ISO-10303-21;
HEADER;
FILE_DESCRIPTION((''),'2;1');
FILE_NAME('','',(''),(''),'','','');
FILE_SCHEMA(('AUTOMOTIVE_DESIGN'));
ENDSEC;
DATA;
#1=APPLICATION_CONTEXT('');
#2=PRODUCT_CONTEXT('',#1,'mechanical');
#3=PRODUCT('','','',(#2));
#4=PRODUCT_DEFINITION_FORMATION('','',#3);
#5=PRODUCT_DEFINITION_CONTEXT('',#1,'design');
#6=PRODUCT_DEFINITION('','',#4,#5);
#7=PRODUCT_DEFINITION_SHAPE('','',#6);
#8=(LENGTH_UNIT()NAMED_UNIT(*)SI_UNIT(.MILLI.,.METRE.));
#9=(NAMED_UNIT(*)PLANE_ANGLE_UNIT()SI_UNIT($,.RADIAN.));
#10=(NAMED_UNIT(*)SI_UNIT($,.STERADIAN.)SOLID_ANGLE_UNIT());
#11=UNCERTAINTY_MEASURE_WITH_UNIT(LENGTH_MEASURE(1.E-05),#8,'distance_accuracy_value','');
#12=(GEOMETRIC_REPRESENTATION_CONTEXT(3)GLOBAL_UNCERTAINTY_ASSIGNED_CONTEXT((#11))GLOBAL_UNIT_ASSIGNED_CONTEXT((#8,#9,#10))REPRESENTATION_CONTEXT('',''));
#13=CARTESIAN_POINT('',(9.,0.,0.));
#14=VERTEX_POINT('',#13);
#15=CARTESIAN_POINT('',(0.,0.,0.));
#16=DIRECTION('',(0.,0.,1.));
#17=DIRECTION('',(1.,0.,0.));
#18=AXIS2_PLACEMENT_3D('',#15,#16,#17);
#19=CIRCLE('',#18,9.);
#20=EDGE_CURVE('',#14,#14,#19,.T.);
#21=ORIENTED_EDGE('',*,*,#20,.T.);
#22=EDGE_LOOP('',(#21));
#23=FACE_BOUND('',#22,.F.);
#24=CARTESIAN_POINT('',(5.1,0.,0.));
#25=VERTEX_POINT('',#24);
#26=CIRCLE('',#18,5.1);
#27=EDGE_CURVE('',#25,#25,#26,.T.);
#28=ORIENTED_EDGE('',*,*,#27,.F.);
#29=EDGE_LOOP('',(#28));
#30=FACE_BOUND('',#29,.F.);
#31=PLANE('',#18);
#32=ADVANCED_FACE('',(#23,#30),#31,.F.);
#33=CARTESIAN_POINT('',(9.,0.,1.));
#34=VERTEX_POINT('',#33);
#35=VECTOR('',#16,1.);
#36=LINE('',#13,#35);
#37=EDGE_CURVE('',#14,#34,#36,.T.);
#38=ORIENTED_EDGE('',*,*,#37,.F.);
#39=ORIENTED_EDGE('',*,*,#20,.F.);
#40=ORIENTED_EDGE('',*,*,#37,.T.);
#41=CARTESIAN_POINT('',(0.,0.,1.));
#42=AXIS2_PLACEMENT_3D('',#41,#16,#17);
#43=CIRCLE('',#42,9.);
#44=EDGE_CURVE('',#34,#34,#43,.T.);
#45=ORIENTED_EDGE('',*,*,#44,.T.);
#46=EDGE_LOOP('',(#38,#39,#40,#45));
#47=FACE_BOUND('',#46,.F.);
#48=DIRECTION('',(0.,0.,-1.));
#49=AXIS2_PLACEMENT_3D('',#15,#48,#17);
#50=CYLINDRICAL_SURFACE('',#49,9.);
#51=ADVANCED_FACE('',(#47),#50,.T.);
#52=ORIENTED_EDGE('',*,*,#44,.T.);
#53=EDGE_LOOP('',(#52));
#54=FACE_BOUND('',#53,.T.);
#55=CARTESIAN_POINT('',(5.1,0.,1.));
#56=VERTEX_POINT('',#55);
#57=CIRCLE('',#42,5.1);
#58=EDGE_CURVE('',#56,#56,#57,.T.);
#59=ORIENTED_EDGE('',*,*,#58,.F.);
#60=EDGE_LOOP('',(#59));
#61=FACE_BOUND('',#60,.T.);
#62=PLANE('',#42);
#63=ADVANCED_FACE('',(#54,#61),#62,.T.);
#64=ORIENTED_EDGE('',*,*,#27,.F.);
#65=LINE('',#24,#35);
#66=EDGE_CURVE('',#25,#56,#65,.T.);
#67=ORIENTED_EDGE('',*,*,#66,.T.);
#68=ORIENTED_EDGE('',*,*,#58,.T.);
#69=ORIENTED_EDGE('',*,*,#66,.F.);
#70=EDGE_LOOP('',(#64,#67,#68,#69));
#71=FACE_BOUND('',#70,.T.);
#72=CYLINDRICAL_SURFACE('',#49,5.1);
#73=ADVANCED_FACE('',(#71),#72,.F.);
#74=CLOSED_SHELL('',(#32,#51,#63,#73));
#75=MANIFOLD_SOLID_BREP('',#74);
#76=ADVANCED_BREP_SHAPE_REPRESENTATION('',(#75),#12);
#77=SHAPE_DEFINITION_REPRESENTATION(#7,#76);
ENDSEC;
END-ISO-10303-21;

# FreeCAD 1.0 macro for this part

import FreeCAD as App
import Part
import Sketcher

V = App.Vector

doc = App.newDocument("Part")
body = doc.addObject("PartDesign::Body", "Body")

# Sketch on XY plane
sketch1 = body.newObject("Sketcher::SketchObject", "Sketch")
sketch1.AttachmentSupport = (doc.getObject("XY_Plane"), [""])
sketch1.MapMode = "FlatFace"
sketch1.addGeometry([
    Part.Circle(V(0, 0, 0), V(0, 0, 1), 9),
    Part.Circle(V(0, 0, 0), V(0, 0, 1), 5),
], False)
sketch1.addConstraint([
    Sketcher.Constraint("Coincident", 0, 3, -1, 1),
    Sketcher.Constraint("Coincident", 1, 3, -1, 1),
    Sketcher.Constraint("Diameter", 0, 18.0),
    Sketcher.Constraint("Diameter", 1, 10.2),
])
pad1 = body.newObject("PartDesign::Pad", "Pad")
pad1.Profile = sketch1
pad1.Length = 1

doc.recompute()
